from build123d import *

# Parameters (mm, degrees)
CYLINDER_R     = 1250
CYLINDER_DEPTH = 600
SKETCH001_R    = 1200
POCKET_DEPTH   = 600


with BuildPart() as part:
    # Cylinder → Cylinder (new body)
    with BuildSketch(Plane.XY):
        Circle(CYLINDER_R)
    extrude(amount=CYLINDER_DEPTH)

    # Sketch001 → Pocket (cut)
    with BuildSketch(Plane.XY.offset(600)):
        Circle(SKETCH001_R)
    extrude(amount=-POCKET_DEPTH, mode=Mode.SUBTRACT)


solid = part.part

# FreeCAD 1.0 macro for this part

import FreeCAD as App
import Part
import Sketcher

doc = App.newDocument("Part")
params = doc.addObject("Spreadsheet::Sheet", "Params")
for row, (alias, value) in enumerate([
    ("sketch1_diameter", "2500 mm"),
    ("pad1_length", "600 mm"),
    ("sketch2_diameter", "2400 mm"),
    ("pocket1_length", "600 mm"),
], start=1):
    params.set(f"A{row}", alias)
    params.set(f"B{row}", "=" + value)
    params.setAlias(f"B{row}", alias)

body = doc.addObject("PartDesign::Body", "Body")

# Sketch on XY plane
sketch1 = doc.addObject("Sketcher::SketchObject", "Sketch")
body.addObject(sketch1)
sketch1.AttachmentSupport = (doc.XY_Plane, [""])
sketch1.MapMode = "FlatFace"
sketch1.addGeometry(Part.Circle(App.Vector(0, 0, 0), App.Vector(0, 0, 1), 1250), False)
sketch1.addConstraint(Sketcher.Constraint("Coincident", 0, 3, -1, 1))
sketch1.addConstraint(Sketcher.Constraint("Diameter", 0, 2500.0))
sketch1.setExpression("Constraints[1]", "Params.sketch1_diameter")
pad1 = doc.addObject("PartDesign::Pad", "Pad")
body.addObject(pad1)
pad1.Profile = sketch1
pad1.setExpression("Length", "Params.pad1_length")

# Sketch on XY plane
sketch2 = doc.addObject("Sketcher::SketchObject", "Sketch001")
body.addObject(sketch2)
sketch2.AttachmentSupport = (doc.XY_Plane, [""])
sketch2.MapMode = "FlatFace"
sketch2.AttachmentOffset = App.Placement(App.Vector(0, 0, 600), App.Rotation())
sketch2.addGeometry(Part.Circle(App.Vector(0, 0, 0), App.Vector(0, 0, 1), 1200), False)
sketch2.addConstraint(Sketcher.Constraint("Coincident", 0, 3, -1, 1))
sketch2.addConstraint(Sketcher.Constraint("Diameter", 0, 2400.0))
sketch2.setExpression("Constraints[1]", "Params.sketch2_diameter")
pocket1 = doc.addObject("PartDesign::Pocket", "Pocket")
body.addObject(pocket1)
pocket1.Profile = sketch2
pocket1.setExpression("Length", "Params.pocket1_length")

doc.recompute()
